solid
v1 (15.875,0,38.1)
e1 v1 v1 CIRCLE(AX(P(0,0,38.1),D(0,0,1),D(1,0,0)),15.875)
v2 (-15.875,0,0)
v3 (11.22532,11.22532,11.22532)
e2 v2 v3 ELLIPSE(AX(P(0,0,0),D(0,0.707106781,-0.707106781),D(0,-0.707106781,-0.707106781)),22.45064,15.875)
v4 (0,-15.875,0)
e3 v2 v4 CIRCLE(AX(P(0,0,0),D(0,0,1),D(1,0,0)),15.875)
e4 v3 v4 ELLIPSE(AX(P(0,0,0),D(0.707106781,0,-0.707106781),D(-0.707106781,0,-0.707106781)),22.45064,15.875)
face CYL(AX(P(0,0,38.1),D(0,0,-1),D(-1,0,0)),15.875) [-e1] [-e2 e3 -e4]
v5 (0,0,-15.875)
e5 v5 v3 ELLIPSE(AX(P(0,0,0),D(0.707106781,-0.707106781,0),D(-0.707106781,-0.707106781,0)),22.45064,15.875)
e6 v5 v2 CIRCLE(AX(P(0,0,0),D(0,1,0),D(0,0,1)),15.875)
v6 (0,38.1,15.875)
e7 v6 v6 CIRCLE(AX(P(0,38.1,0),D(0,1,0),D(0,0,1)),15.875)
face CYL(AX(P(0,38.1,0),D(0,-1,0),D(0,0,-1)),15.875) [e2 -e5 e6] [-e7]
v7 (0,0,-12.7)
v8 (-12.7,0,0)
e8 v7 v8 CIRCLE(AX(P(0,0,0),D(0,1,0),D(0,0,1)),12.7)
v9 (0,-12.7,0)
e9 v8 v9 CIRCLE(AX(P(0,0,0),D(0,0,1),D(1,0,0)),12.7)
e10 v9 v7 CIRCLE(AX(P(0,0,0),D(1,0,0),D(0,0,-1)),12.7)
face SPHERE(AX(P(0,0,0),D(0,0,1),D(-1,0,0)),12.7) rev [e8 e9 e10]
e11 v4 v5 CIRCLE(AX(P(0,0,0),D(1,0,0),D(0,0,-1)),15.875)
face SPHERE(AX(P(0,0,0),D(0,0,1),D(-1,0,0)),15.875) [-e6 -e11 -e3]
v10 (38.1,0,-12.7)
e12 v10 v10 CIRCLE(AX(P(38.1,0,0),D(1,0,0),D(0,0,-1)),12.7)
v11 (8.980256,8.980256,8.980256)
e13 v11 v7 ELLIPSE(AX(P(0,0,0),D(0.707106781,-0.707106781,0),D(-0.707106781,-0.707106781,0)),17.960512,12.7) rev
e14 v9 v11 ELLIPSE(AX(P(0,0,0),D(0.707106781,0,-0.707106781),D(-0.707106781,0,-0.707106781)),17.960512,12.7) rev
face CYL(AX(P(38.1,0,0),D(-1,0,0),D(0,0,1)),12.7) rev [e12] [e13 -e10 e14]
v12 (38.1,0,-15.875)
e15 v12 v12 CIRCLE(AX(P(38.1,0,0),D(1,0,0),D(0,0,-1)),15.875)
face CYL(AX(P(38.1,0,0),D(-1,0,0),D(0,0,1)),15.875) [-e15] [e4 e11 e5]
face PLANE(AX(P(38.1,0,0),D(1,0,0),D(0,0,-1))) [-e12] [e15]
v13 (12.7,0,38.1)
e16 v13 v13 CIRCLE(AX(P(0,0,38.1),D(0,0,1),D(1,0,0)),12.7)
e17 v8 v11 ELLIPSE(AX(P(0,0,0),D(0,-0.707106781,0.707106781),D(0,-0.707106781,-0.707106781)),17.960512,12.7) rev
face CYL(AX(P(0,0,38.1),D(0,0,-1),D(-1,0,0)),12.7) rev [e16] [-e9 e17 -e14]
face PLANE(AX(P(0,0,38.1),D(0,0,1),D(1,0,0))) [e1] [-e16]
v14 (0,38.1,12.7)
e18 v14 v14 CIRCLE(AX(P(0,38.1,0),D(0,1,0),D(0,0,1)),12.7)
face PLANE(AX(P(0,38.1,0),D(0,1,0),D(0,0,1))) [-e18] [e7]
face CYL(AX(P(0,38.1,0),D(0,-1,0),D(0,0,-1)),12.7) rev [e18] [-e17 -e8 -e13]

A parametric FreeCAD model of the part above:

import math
import FreeCAD as App
import Part
import Sketcher
from FreeCAD import Vector
Q = App.Units.Quantity

doc = App.newDocument("Part")
body = doc.addObject("PartDesign::Body", "Body")

# Sketch on XY plane
sketch1 = doc.addObject("Sketcher::SketchObject", "Sketch")
body.addObject(sketch1)
sketch1.AttachmentSupport = (doc.XY_Plane, [""])
sketch1.MapMode = "FlatFace"
sketch1.addGeometry([
    Part.Circle(Vector(0, 0, 0), Vector(0, 0, 1), 16),
    Part.Circle(Vector(0, 0, 0), Vector(0, 0, 1), 13),
], False)
sketch1.addConstraint([
    Sketcher.Constraint("Coincident", 0, 3, -1, 1),
    Sketcher.Constraint("Coincident", 1, 3, -1, 1),
    Sketcher.Constraint("Diameter", 1, Q("1 in")),
    Sketcher.Constraint("Diameter", 0, Q("1.25 in")),
])
pad1 = doc.addObject("PartDesign::Pad", "Pad")
body.addObject(pad1)
pad1.Profile = sketch1
pad1.Length = Q("1.5 in")

# Sketch on XZ plane
sketch2 = doc.addObject("Sketcher::SketchObject", "Sketch001")
body.addObject(sketch2)
sketch2.AttachmentSupport = (doc.XZ_Plane, [""])
sketch2.MapMode = "FlatFace"
sketch2.addGeometry([
    Part.Circle(Vector(0, 0, 0), Vector(0, 0, 1), 16),
    Part.Circle(Vector(0, 0, 0), Vector(0, 0, 1), 13),
], False)
sketch2.addConstraint([
    Sketcher.Constraint("Coincident", 0, 3, -1, 1),
    Sketcher.Constraint("Coincident", 1, 3, -1, 1),
    Sketcher.Constraint("Diameter", 1, Q("1 in")),
    Sketcher.Constraint("Diameter", 0, Q("1.25 in")),
])
pad2 = doc.addObject("PartDesign::Pad", "Pad001")
body.addObject(pad2)
pad2.Profile = sketch2
pad2.Length = Q("1.5 in")
pad2.Reversed = True

# Sketch on YZ plane
sketch3 = doc.addObject("Sketcher::SketchObject", "Sketch002")
body.addObject(sketch3)
sketch3.AttachmentSupport = (doc.YZ_Plane, [""])
sketch3.MapMode = "FlatFace"
sketch3.addGeometry([
    Part.Circle(Vector(0, 0, 0), Vector(0, 0, 1), 16),
    Part.Circle(Vector(0, 0, 0), Vector(0, 0, 1), 13),
], False)
sketch3.addConstraint([
    Sketcher.Constraint("Coincident", 0, 3, -1, 1),
    Sketcher.Constraint("Coincident", 1, 3, -1, 1),
    Sketcher.Constraint("Diameter", 1, Q("1 in")),
    Sketcher.Constraint("Diameter", 0, Q("1.25 in")),
])
pad3 = doc.addObject("PartDesign::Pad", "Pad002")
body.addObject(pad3)
pad3.Profile = sketch3
pad3.Length = Q("1.5 in")

# Sketch on YZ plane
sketch4 = doc.addObject("Sketcher::SketchObject", "Sketch003")
body.addObject(sketch4)
sketch4.AttachmentSupport = (doc.YZ_Plane, [""])
sketch4.MapMode = "FlatFace"
sketch4.addGeometry([
    Part.ArcOfCircle(Part.Circle(Vector(0, 0, 0), Vector(0, 0, 1), 15.9), math.radians(-180), math.radians(-90)),
    Part.LineSegment(Vector(-15.9, 0, 0), Vector(-12.7, 0, 0)),
    Part.ArcOfCircle(Part.Circle(Vector(0, 0, 0), Vector(0, 0, 1), 12.7), math.radians(180), math.radians(270)),
    Part.LineSegment(Vector(0, -12.7, 0), Vector(0, -15.9, 0)),
], False)
sketch4.addConstraint([
    Sketcher.Constraint("Coincident", 0, 1, 1, 1),
    Sketcher.Constraint("Coincident", 1, 2, 2, 1),
    Sketcher.Constraint("Coincident", 2, 2, 3, 1),
    Sketcher.Constraint("Coincident", 3, 2, 0, 2),
    Sketcher.Constraint("Horizontal", 1),
    Sketcher.Constraint("Vertical", 3),
    Sketcher.Constraint("Coincident", 0, 3, -1, 1),
    Sketcher.Constraint("Coincident", 2, 3, -1, 1),
    Sketcher.Constraint("PointOnObject", 0, 1, -1),
    Sketcher.Constraint("PointOnObject", 2, 2, -2),
    Sketcher.Constraint("Radius", 2, Q("0.5 in")),
    Sketcher.Constraint("Radius", 0, Q("0.625 in")),
])
revolution = doc.addObject("PartDesign::Revolution", "Revolution")
body.addObject(revolution)
revolution.Profile = sketch4
revolution.ReferenceAxis = (sketch4, ["V_Axis"])
revolution.Angle = 90
revolution.Reversed = True

# Sketch on XZ plane
sketch5 = doc.addObject("Sketcher::SketchObject", "Sketch004")
body.addObject(sketch5)
sketch5.AttachmentSupport = (doc.XZ_Plane, [""])
sketch5.MapMode = "FlatFace"
sketch5.AttachmentOffset = App.Placement(Vector(0, 0, -1.5 * 25.4), App.Rotation())
sketch5.addGeometry(Part.Circle(Vector(0, 0, 0), Vector(0, 0, 1), 13), False)
sketch5.addConstraint([
    Sketcher.Constraint("Coincident", 0, 3, -1, 1),
    Sketcher.Constraint("Diameter", 0, Q("1 in")),
])
pocket1 = doc.addObject("PartDesign::Pocket", "Pocket")
body.addObject(pocket1)
pocket1.Profile = sketch5
pocket1.Length = Q("1.5 in")
pocket1.Reversed = True

# Sketch on XY plane
sketch6 = doc.addObject("Sketcher::SketchObject", "Sketch005")
body.addObject(sketch6)
sketch6.AttachmentSupport = (doc.XY_Plane, [""])
sketch6.MapMode = "FlatFace"
sketch6.AttachmentOffset = App.Placement(Vector(0, 0, 1.5 * 25.4), App.Rotation())
sketch6.addGeometry(Part.Circle(Vector(0, 0, 0), Vector(0, 0, 1), 13), False)
sketch6.addConstraint([
    Sketcher.Constraint("Coincident", 0, 3, -1, 1),
    Sketcher.Constraint("Diameter", 0, Q("1 in")),
])
pocket2 = doc.addObject("PartDesign::Pocket", "Pocket001")
body.addObject(pocket2)
pocket2.Profile = sketch6
pocket2.Length = Q("1.5 in")

# Sketch on YZ plane
sketch7 = doc.addObject("Sketcher::SketchObject", "Sketch006")
body.addObject(sketch7)
sketch7.AttachmentSupport = (doc.YZ_Plane, [""])
sketch7.MapMode = "FlatFace"
sketch7.addGeometry(Part.Circle(Vector(0, 0, 0), Vector(0, 0, 1), 13), False)
sketch7.addConstraint([
    Sketcher.Constraint("Coincident", 0, 3, -1, 1),
    Sketcher.Constraint("Diameter", 0, Q("1 in")),
])
pocket3 = doc.addObject("PartDesign::Pocket", "Pocket002")
body.addObject(pocket3)
pocket3.Profile = sketch7
pocket3.Length = Q("0.625 in")
pocket3.Reversed = True

doc.recompute()
